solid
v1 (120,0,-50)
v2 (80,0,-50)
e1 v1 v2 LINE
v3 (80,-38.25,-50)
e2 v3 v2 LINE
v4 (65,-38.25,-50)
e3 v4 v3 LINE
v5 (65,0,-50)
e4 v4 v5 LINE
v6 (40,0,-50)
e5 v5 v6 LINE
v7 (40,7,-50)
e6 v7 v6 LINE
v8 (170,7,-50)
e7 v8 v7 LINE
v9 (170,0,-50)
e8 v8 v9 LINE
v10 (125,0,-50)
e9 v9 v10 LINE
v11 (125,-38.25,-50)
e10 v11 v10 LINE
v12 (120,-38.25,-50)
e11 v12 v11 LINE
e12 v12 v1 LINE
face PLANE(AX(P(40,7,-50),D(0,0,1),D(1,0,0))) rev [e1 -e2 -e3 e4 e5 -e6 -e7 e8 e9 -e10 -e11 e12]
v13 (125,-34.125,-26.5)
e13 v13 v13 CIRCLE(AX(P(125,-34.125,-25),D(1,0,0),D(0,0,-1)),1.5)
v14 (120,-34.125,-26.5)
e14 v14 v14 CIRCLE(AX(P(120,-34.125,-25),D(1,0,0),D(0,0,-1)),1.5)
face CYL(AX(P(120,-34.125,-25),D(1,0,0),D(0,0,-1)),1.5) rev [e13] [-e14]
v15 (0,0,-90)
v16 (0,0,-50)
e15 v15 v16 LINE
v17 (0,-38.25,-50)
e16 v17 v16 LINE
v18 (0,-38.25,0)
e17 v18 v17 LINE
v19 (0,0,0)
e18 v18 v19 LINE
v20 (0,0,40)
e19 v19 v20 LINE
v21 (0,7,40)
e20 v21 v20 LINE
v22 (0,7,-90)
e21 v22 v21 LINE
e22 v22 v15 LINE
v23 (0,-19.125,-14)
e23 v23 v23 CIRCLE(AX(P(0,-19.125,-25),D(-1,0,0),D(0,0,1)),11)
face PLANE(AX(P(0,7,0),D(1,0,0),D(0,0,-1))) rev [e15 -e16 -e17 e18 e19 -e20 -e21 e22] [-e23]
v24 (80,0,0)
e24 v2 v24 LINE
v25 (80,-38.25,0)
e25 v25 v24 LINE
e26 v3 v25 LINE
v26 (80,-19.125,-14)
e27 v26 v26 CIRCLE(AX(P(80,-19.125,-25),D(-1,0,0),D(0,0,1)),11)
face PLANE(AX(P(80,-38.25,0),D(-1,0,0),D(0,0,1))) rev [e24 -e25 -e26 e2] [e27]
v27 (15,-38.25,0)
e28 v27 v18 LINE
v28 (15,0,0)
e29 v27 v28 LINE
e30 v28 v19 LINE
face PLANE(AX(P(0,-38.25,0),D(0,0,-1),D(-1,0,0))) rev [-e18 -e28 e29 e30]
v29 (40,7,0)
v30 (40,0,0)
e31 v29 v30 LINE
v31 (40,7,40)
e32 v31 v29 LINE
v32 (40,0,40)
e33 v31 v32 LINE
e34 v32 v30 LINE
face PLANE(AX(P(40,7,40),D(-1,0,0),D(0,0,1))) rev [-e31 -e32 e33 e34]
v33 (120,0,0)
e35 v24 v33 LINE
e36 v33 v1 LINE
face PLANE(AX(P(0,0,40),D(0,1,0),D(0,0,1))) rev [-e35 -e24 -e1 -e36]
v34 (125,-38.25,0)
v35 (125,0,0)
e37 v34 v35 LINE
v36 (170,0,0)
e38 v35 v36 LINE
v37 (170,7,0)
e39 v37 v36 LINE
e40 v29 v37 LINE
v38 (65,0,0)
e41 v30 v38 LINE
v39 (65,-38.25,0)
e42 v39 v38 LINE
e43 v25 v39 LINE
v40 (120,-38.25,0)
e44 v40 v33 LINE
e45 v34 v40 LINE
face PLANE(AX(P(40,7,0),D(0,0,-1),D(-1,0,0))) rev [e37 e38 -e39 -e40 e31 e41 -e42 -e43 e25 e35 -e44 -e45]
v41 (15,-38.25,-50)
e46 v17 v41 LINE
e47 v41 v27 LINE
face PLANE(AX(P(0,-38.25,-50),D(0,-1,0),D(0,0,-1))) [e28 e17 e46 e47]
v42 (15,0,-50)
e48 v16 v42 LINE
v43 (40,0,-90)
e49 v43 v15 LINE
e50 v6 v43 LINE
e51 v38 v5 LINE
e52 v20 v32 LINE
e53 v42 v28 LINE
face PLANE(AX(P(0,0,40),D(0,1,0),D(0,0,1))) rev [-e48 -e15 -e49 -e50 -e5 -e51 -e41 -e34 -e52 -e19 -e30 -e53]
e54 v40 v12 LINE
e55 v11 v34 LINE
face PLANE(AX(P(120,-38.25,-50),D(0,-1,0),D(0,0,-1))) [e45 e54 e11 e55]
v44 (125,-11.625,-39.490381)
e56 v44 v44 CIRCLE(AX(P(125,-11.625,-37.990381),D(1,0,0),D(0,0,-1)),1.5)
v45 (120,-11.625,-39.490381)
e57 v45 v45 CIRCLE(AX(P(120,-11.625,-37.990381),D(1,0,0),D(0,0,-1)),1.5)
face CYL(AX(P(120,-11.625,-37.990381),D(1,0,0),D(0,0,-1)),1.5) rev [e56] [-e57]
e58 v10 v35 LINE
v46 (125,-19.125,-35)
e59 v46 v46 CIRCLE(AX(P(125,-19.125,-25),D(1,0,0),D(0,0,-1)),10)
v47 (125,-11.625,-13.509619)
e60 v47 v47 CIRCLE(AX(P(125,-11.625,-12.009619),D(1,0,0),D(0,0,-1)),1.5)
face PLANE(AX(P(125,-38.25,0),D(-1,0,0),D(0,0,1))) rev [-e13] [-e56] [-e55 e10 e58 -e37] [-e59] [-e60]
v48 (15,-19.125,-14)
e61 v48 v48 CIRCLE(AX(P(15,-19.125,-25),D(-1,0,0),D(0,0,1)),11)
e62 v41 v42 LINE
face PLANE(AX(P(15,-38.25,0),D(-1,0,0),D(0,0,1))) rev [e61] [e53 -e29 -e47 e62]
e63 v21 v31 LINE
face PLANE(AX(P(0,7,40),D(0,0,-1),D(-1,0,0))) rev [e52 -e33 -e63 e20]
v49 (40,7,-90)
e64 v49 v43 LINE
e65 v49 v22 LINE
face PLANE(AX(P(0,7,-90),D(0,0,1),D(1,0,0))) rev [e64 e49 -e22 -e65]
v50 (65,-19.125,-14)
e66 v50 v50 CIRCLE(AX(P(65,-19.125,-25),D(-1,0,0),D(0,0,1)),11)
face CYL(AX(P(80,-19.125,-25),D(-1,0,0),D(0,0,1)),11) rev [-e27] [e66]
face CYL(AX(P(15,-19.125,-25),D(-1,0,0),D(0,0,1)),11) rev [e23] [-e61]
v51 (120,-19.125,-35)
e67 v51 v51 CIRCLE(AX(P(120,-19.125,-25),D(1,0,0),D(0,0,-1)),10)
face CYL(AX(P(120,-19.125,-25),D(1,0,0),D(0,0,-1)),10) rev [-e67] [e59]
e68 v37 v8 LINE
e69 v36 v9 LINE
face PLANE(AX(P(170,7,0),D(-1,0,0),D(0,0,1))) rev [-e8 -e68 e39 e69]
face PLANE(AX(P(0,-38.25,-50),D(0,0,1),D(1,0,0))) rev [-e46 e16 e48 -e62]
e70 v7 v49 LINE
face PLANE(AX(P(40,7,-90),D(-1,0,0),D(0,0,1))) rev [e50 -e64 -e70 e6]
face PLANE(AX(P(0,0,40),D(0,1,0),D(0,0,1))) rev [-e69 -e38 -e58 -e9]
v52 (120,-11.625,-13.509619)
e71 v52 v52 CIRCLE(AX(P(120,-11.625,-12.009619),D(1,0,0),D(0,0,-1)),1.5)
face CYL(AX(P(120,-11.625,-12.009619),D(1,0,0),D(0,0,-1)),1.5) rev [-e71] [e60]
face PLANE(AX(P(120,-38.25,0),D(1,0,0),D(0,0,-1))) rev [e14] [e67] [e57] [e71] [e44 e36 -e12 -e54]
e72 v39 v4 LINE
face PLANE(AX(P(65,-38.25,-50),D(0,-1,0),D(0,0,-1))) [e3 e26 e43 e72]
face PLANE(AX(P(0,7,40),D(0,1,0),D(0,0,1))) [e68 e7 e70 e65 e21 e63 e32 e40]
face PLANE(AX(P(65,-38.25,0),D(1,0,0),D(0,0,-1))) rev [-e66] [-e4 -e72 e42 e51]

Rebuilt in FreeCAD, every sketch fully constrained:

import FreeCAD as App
import Part
import Sketcher
from FreeCAD import Vector


def add_polygon(sketch, points):
    """Adds a closed chain of lines whose ends are joined by coincident constraints."""
    first, n = sketch.GeometryCount, len(points)
    for a, b in zip(points, points[1:] + points[:1]):
        sketch.addGeometry(Part.LineSegment(App.Vector(*a, 0), App.Vector(*b, 0)), False)
    for i in range(n):
        sketch.addConstraint(Sketcher.Constraint("Coincident", first + i, 2, first + (i + 1) % n, 1))

doc = App.newDocument("Part")
params = doc.addObject("Spreadsheet::Sheet", "Params")
for row, (alias, value) in enumerate([
    ("sketch1_width", "130 mm"),
    ("sketch1_width2", "40 mm"),
    ("pad1_length", "7 mm"),
    ("sketch2_width", "15 mm"),
    ("sketch2_width2", "5 mm"),
    ("sketch2_height", "50 mm"),
    ("pad2_length", "38.25 mm"),
    ("sketch3_diameter", "22 mm"),
    ("pocket1_length", "15 mm"),
    ("sketch4_diameter", "22 mm"),
    ("pocket2_length", "15 mm"),
    ("sketch5_diameter", "20 mm"),
    ("sketch5_diameter2", "3 mm"),
    ("pocket3_length", "5 mm"),
    ("sketch6_diameter", "20 mm"),
    ("sketch6_diameter2", "3 mm"),
    ("pocket4_length", "5 mm"),
], start=1):
    params.set(f"A{row}", alias)
    params.set(f"B{row}", "=" + value)
    params.setAlias(f"B{row}", alias)

body = doc.addObject("PartDesign::Body", "Body")

sketch1 = doc.addObject("Sketcher::SketchObject", "Sketch")
body.addObject(sketch1)
sketch1.AttachmentSupport = (doc.XZ_Plane, [""])
sketch1.MapMode = "FlatFace"
add_polygon(sketch1, [(40, 0), (170, 0), (170, -50), (40, -50), (40, -90), (0, -90), (0, 40), (40, 40)])
sketch1.addConstraint([
    Sketcher.Constraint("Horizontal", 0),
    Sketcher.Constraint("Vertical", 1),
    Sketcher.Constraint("Horizontal", 2),
    Sketcher.Constraint("Vertical", 3),
    Sketcher.Constraint("Horizontal", 4),
    Sketcher.Constraint("Vertical", 5),
    Sketcher.Constraint("Horizontal", 6),
    Sketcher.Constraint("Vertical", 7),
    Sketcher.Constraint("PointOnObject", 0, 2, -1),
    Sketcher.Constraint("PointOnObject", 4, 2, -2),
    Sketcher.Constraint("Vertical", 3, 2, 6, 2),
    Sketcher.Constraint("Equal", 6, 3),
    Sketcher.Constraint("Equal", 2, 5),
    Sketcher.Constraint("Equal", 3, 7),
    Sketcher.Constraint("DistanceX", 0, 1, 0, 2, 130.0),
    Sketcher.Constraint("DistanceX", 4, 2, 4, 1, 40.0),
])
sketch1.setExpression("Constraints[22]", "Params.sketch1_width")
sketch1.setExpression("Constraints[23]", "Params.sketch1_width2")
pad1 = doc.addObject("PartDesign::Pad", "Pad")
body.addObject(pad1)
pad1.Profile = sketch1
pad1.setExpression("Length", "Params.pad1_length")
pad1.Reversed = True

sketch2 = doc.addObject("Sketcher::SketchObject", "Sketch001")
body.addObject(sketch2)
sketch2.AttachmentSupport = (doc.XZ_Plane, [""])
sketch2.MapMode = "FlatFace"
add_polygon(sketch2, [(0, 0), (0, -50), (15, -50), (15, 0)])
add_polygon(sketch2, [(65, 0), (65, -50), (80, -50), (80, 0)])
add_polygon(sketch2, [(120, 0), (120, -50), (125, -50), (125, 0)])
sketch2.addConstraint([
    Sketcher.Constraint("Vertical", 0),
    Sketcher.Constraint("Horizontal", 1),
    Sketcher.Constraint("Vertical", 2),
    Sketcher.Constraint("Horizontal", 3),
    Sketcher.Constraint("Vertical", 4),
    Sketcher.Constraint("Horizontal", 5),
    Sketcher.Constraint("Vertical", 6),
    Sketcher.Constraint("Horizontal", 7),
    Sketcher.Constraint("Vertical", 8),
    Sketcher.Constraint("Horizontal", 9),
    Sketcher.Constraint("Vertical", 10),
    Sketcher.Constraint("Horizontal", 11),
    Sketcher.Constraint("Coincident", 3, 2, -1, 1),
    Sketcher.Constraint("PointOnObject", 6, 2, -1),
    Sketcher.Constraint("PointOnObject", 10, 2, -1),
    Sketcher.Constraint("Horizontal", 1, 2, 4, 2),
    Sketcher.Constraint("Horizontal", 5, 2, 8, 2),
    Sketcher.Constraint("Equal", 3, 5),
    Sketcher.Constraint("DistanceX", 1, 1, 1, 2, 15.0),
    Sketcher.Constraint("DistanceX", 9, 1, 9, 2, 5.0),
    Sketcher.Constraint("DistanceY", 0, 2, 0, 1, 50.0),
    Sketcher.Constraint("DistanceX", -1, 1, 4, 2, 65.0),
    Sketcher.Constraint("DistanceX", -1, 1, 8, 2, 120.0),
])
sketch2.setExpression("Constraints[30]", "Params.sketch2_width")
sketch2.setExpression("Constraints[31]", "Params.sketch2_width2")
sketch2.setExpression("Constraints[32]", "Params.sketch2_height")
pad2 = doc.addObject("PartDesign::Pad", "Pad001")
body.addObject(pad2)
pad2.Profile = sketch2
pad2.setExpression("Length", "Params.pad2_length")

sketch3 = doc.addObject("Sketcher::SketchObject", "Sketch002")
body.addObject(sketch3)
sketch3.AttachmentSupport = (doc.YZ_Plane, [""])
sketch3.MapMode = "FlatFace"
sketch3.addGeometry(Part.Circle(Vector(-19, -25, 0), Vector(0, 0, 1), 11), False)
sketch3.addConstraint([
    Sketcher.Constraint("Diameter", 0, 22.0),
    Sketcher.Constraint("DistanceY", 0, 3, -1, 1, 25.0),
    Sketcher.Constraint("DistanceX", 0, 3, -1, 1, 19.125),
])
sketch3.setExpression("Constraints[0]", "Params.sketch3_diameter")
pocket1 = doc.addObject("PartDesign::Pocket", "Pocket")
body.addObject(pocket1)
pocket1.Profile = sketch3
pocket1.setExpression("Length", "Params.pocket1_length")
pocket1.Reversed = True

sketch4 = doc.addObject("Sketcher::SketchObject", "Sketch003")
body.addObject(sketch4)
sketch4.AttachmentSupport = (doc.YZ_Plane, [""])
sketch4.MapMode = "FlatFace"
sketch4.AttachmentOffset = App.Placement(Vector(0, 0, 65), App.Rotation())
sketch4.addGeometry(Part.Circle(Vector(-19, -25, 0), Vector(0, 0, 1), 11), False)
sketch4.addConstraint([
    Sketcher.Constraint("Diameter", 0, 22.0),
    Sketcher.Constraint("DistanceY", 0, 3, -1, 1, 25.0),
    Sketcher.Constraint("DistanceX", 0, 3, -1, 1, 19.125),
])
sketch4.setExpression("Constraints[0]", "Params.sketch4_diameter")
pocket2 = doc.addObject("PartDesign::Pocket", "Pocket001")
body.addObject(pocket2)
pocket2.Profile = sketch4
pocket2.setExpression("Length", "Params.pocket2_length")
pocket2.Reversed = True

sketch5 = doc.addObject("Sketcher::SketchObject", "Sketch004")
body.addObject(sketch5)
sketch5.AttachmentSupport = (doc.YZ_Plane, [""])
sketch5.MapMode = "FlatFace"
sketch5.AttachmentOffset = App.Placement(Vector(0, 0, 125), App.Rotation())
sketch5.addGeometry([
    Part.Circle(Vector(-19.1, -25, 0), Vector(0, 0, 1), 10),
    Part.Circle(Vector(-11.6, -12, 0), Vector(0, 0, 1), 1.5),
    Part.Circle(Vector(-11.6, -38, 0), Vector(0, 0, 1), 1.5),
    Part.Circle(Vector(-34.1, -25, 0), Vector(0, 0, 1), 1.5),
], False)
sketch5.addConstraint([
    Sketcher.Constraint("Equal", 1, 2),
    Sketcher.Constraint("Equal", 2, 3),
    Sketcher.Constraint("Horizontal", 0, 3, 3, 3),
    Sketcher.Constraint("Vertical", 1, 3, 2, 3),
    Sketcher.Constraint("Diameter", 0, 20.0),
    Sketcher.Constraint("Diameter", 1, 3.0),
    Sketcher.Constraint("DistanceY", 0, 3, -1, 1, 25.0),
    Sketcher.Constraint("DistanceX", 3, 3, 0, 3, 15.0),
    Sketcher.Constraint("DistanceX", 0, 3, 1, 3, 7.5),
    Sketcher.Constraint("DistanceX", 0, 3, -1, 1, 19.125),
    Sketcher.Constraint("DistanceY", 1, 3, -1, 1, 12.009619),
    Sketcher.Constraint("DistanceY", 2, 3, -1, 1, 37.990381),
])
sketch5.setExpression("Constraints[4]", "Params.sketch5_diameter")
sketch5.setExpression("Constraints[5]", "Params.sketch5_diameter2")
pocket3 = doc.addObject("PartDesign::Pocket", "Pocket002")
body.addObject(pocket3)
pocket3.Profile = sketch5
pocket3.setExpression("Length", "Params.pocket3_length")

sketch6 = doc.addObject("Sketcher::SketchObject", "Sketch005")
body.addObject(sketch6)
sketch6.AttachmentSupport = (doc.YZ_Plane, [""])
sketch6.MapMode = "FlatFace"
sketch6.AttachmentOffset = App.Placement(Vector(0, 0, 125), App.Rotation())
sketch6.addGeometry([
    Part.Circle(Vector(-19.1, -25, 0), Vector(0, 0, 1), 10),
    Part.Circle(Vector(-11.6, -12, 0), Vector(0, 0, 1), 1.5),
    Part.Circle(Vector(-11.6, -38, 0), Vector(0, 0, 1), 1.5),
    Part.Circle(Vector(-34.1, -25, 0), Vector(0, 0, 1), 1.5),
], False)
sketch6.addConstraint([
    Sketcher.Constraint("Equal", 1, 2),
    Sketcher.Constraint("Equal", 2, 3),
    Sketcher.Constraint("Horizontal", 0, 3, 3, 3),
    Sketcher.Constraint("Vertical", 1, 3, 2, 3),
    Sketcher.Constraint("Diameter", 0, 20.0),
    Sketcher.Constraint("Diameter", 1, 3.0),
    Sketcher.Constraint("DistanceY", 0, 3, -1, 1, 25.0),
    Sketcher.Constraint("DistanceX", 3, 3, 0, 3, 15.0),
    Sketcher.Constraint("DistanceX", 0, 3, 1, 3, 7.5),
    Sketcher.Constraint("DistanceX", 0, 3, -1, 1, 19.125),
    Sketcher.Constraint("DistanceY", 1, 3, -1, 1, 12.009619),
    Sketcher.Constraint("DistanceY", 2, 3, -1, 1, 37.990381),
])
sketch6.setExpression("Constraints[4]", "Params.sketch6_diameter")
sketch6.setExpression("Constraints[5]", "Params.sketch6_diameter2")
pocket4 = doc.addObject("PartDesign::Pocket", "Pocket003")
body.addObject(pocket4)
pocket4.Profile = sketch6
pocket4.setExpression("Length", "Params.pocket4_length")

doc.recompute()
